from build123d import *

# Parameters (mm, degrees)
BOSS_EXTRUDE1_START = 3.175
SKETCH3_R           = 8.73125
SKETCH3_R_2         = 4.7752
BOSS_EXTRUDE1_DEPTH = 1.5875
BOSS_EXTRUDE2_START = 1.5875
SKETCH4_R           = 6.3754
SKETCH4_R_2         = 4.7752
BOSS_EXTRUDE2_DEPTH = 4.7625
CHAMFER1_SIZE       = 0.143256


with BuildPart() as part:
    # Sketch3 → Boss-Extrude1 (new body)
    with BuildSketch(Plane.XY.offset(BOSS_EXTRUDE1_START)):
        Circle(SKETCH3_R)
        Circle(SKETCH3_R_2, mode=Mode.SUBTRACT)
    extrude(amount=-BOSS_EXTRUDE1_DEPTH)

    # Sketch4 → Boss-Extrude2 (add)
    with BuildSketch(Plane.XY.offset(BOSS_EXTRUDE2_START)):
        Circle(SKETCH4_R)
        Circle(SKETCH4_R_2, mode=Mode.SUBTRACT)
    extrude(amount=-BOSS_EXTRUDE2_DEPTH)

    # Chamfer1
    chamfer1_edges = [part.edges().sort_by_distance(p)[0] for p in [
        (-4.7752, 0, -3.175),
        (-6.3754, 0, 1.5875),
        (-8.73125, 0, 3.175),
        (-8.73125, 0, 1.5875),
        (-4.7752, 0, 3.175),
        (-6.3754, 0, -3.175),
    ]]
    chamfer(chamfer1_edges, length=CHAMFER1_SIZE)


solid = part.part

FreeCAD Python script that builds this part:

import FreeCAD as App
import Part
import Sketcher

V = App.Vector
Q = App.Units.Quantity


def edges_at(feature, points):
    """Names of the edges that pass closest to the given points."""
    edges = feature.Shape.Edges
    near = lambda p: min(range(len(edges)), key=lambda i: edges[i].distToShape(Part.Vertex(*p))[0])
    return sorted({f"Edge{near(p) + 1}" for p in points})

doc = App.newDocument("Part")
body = doc.addObject("PartDesign::Body", "Body")

# Sketch on XY plane
sketch1 = body.newObject("Sketcher::SketchObject", "Sketch")
sketch1.AttachmentSupport = (doc.getObject("XY_Plane"), [""])
sketch1.MapMode = "FlatFace"
sketch1.AttachmentOffset = App.Placement(V(0, 0, 0.125 * 25.4), App.Rotation())
sketch1.addGeometry(Part.Circle(V(0, 0, 0), V(0, 0, 1), 8.7), False)
sketch1.addGeometry(Part.Circle(V(0, 0, 0), V(0, 0, 1), 4.8), False)
sketch1.addConstraint(Sketcher.Constraint("Coincident", 0, 3, -1, 1))
sketch1.addConstraint(Sketcher.Constraint("Coincident", 1, 3, -1, 1))
sketch1.addConstraint(Sketcher.Constraint("Diameter", 0, Q("0.6875 in")))
sketch1.addConstraint(Sketcher.Constraint("Diameter", 1, Q("0.376 in")))
pad1 = body.newObject("PartDesign::Pad", "Pad")
pad1.Profile = sketch1
pad1.Length = Q("0.0625 in")
pad1.Reversed = True

# Sketch on XY plane
sketch2 = body.newObject("Sketcher::SketchObject", "Sketch001")
sketch2.AttachmentSupport = (doc.getObject("XY_Plane"), [""])
sketch2.MapMode = "FlatFace"
sketch2.AttachmentOffset = App.Placement(V(0, 0, 0.0625 * 25.4), App.Rotation())
sketch2.addGeometry(Part.Circle(V(0, 0, 0), V(0, 0, 1), 6.4), False)
sketch2.addGeometry(Part.Circle(V(0, 0, 0), V(0, 0, 1), 4.8), False)
sketch2.addConstraint(Sketcher.Constraint("Coincident", 0, 3, -1, 1))
sketch2.addConstraint(Sketcher.Constraint("Coincident", 1, 3, -1, 1))
sketch2.addConstraint(Sketcher.Constraint("Diameter", 0, Q("0.502 in")))
sketch2.addConstraint(Sketcher.Constraint("Diameter", 1, Q("0.376 in")))
pad2 = body.newObject("PartDesign::Pad", "Pad001")
pad2.Profile = sketch2
pad2.Length = Q("0.1875 in")
pad2.Reversed = True
doc.recompute()

chamfer = body.newObject("PartDesign::Chamfer", "Chamfer")
chamfer.Base = (pad2, edges_at(pad2, [
    (-4.775, 0, -3.175),
    (-6.375, 0, 1.587),
    (-8.731, 0, 3.175),
    (-8.731, 0, 1.587),
    (-4.775, 0, 3.175),
    (-6.375, 0, -3.175),
]))
chamfer.Size = 0.143256

doc.recompute()
